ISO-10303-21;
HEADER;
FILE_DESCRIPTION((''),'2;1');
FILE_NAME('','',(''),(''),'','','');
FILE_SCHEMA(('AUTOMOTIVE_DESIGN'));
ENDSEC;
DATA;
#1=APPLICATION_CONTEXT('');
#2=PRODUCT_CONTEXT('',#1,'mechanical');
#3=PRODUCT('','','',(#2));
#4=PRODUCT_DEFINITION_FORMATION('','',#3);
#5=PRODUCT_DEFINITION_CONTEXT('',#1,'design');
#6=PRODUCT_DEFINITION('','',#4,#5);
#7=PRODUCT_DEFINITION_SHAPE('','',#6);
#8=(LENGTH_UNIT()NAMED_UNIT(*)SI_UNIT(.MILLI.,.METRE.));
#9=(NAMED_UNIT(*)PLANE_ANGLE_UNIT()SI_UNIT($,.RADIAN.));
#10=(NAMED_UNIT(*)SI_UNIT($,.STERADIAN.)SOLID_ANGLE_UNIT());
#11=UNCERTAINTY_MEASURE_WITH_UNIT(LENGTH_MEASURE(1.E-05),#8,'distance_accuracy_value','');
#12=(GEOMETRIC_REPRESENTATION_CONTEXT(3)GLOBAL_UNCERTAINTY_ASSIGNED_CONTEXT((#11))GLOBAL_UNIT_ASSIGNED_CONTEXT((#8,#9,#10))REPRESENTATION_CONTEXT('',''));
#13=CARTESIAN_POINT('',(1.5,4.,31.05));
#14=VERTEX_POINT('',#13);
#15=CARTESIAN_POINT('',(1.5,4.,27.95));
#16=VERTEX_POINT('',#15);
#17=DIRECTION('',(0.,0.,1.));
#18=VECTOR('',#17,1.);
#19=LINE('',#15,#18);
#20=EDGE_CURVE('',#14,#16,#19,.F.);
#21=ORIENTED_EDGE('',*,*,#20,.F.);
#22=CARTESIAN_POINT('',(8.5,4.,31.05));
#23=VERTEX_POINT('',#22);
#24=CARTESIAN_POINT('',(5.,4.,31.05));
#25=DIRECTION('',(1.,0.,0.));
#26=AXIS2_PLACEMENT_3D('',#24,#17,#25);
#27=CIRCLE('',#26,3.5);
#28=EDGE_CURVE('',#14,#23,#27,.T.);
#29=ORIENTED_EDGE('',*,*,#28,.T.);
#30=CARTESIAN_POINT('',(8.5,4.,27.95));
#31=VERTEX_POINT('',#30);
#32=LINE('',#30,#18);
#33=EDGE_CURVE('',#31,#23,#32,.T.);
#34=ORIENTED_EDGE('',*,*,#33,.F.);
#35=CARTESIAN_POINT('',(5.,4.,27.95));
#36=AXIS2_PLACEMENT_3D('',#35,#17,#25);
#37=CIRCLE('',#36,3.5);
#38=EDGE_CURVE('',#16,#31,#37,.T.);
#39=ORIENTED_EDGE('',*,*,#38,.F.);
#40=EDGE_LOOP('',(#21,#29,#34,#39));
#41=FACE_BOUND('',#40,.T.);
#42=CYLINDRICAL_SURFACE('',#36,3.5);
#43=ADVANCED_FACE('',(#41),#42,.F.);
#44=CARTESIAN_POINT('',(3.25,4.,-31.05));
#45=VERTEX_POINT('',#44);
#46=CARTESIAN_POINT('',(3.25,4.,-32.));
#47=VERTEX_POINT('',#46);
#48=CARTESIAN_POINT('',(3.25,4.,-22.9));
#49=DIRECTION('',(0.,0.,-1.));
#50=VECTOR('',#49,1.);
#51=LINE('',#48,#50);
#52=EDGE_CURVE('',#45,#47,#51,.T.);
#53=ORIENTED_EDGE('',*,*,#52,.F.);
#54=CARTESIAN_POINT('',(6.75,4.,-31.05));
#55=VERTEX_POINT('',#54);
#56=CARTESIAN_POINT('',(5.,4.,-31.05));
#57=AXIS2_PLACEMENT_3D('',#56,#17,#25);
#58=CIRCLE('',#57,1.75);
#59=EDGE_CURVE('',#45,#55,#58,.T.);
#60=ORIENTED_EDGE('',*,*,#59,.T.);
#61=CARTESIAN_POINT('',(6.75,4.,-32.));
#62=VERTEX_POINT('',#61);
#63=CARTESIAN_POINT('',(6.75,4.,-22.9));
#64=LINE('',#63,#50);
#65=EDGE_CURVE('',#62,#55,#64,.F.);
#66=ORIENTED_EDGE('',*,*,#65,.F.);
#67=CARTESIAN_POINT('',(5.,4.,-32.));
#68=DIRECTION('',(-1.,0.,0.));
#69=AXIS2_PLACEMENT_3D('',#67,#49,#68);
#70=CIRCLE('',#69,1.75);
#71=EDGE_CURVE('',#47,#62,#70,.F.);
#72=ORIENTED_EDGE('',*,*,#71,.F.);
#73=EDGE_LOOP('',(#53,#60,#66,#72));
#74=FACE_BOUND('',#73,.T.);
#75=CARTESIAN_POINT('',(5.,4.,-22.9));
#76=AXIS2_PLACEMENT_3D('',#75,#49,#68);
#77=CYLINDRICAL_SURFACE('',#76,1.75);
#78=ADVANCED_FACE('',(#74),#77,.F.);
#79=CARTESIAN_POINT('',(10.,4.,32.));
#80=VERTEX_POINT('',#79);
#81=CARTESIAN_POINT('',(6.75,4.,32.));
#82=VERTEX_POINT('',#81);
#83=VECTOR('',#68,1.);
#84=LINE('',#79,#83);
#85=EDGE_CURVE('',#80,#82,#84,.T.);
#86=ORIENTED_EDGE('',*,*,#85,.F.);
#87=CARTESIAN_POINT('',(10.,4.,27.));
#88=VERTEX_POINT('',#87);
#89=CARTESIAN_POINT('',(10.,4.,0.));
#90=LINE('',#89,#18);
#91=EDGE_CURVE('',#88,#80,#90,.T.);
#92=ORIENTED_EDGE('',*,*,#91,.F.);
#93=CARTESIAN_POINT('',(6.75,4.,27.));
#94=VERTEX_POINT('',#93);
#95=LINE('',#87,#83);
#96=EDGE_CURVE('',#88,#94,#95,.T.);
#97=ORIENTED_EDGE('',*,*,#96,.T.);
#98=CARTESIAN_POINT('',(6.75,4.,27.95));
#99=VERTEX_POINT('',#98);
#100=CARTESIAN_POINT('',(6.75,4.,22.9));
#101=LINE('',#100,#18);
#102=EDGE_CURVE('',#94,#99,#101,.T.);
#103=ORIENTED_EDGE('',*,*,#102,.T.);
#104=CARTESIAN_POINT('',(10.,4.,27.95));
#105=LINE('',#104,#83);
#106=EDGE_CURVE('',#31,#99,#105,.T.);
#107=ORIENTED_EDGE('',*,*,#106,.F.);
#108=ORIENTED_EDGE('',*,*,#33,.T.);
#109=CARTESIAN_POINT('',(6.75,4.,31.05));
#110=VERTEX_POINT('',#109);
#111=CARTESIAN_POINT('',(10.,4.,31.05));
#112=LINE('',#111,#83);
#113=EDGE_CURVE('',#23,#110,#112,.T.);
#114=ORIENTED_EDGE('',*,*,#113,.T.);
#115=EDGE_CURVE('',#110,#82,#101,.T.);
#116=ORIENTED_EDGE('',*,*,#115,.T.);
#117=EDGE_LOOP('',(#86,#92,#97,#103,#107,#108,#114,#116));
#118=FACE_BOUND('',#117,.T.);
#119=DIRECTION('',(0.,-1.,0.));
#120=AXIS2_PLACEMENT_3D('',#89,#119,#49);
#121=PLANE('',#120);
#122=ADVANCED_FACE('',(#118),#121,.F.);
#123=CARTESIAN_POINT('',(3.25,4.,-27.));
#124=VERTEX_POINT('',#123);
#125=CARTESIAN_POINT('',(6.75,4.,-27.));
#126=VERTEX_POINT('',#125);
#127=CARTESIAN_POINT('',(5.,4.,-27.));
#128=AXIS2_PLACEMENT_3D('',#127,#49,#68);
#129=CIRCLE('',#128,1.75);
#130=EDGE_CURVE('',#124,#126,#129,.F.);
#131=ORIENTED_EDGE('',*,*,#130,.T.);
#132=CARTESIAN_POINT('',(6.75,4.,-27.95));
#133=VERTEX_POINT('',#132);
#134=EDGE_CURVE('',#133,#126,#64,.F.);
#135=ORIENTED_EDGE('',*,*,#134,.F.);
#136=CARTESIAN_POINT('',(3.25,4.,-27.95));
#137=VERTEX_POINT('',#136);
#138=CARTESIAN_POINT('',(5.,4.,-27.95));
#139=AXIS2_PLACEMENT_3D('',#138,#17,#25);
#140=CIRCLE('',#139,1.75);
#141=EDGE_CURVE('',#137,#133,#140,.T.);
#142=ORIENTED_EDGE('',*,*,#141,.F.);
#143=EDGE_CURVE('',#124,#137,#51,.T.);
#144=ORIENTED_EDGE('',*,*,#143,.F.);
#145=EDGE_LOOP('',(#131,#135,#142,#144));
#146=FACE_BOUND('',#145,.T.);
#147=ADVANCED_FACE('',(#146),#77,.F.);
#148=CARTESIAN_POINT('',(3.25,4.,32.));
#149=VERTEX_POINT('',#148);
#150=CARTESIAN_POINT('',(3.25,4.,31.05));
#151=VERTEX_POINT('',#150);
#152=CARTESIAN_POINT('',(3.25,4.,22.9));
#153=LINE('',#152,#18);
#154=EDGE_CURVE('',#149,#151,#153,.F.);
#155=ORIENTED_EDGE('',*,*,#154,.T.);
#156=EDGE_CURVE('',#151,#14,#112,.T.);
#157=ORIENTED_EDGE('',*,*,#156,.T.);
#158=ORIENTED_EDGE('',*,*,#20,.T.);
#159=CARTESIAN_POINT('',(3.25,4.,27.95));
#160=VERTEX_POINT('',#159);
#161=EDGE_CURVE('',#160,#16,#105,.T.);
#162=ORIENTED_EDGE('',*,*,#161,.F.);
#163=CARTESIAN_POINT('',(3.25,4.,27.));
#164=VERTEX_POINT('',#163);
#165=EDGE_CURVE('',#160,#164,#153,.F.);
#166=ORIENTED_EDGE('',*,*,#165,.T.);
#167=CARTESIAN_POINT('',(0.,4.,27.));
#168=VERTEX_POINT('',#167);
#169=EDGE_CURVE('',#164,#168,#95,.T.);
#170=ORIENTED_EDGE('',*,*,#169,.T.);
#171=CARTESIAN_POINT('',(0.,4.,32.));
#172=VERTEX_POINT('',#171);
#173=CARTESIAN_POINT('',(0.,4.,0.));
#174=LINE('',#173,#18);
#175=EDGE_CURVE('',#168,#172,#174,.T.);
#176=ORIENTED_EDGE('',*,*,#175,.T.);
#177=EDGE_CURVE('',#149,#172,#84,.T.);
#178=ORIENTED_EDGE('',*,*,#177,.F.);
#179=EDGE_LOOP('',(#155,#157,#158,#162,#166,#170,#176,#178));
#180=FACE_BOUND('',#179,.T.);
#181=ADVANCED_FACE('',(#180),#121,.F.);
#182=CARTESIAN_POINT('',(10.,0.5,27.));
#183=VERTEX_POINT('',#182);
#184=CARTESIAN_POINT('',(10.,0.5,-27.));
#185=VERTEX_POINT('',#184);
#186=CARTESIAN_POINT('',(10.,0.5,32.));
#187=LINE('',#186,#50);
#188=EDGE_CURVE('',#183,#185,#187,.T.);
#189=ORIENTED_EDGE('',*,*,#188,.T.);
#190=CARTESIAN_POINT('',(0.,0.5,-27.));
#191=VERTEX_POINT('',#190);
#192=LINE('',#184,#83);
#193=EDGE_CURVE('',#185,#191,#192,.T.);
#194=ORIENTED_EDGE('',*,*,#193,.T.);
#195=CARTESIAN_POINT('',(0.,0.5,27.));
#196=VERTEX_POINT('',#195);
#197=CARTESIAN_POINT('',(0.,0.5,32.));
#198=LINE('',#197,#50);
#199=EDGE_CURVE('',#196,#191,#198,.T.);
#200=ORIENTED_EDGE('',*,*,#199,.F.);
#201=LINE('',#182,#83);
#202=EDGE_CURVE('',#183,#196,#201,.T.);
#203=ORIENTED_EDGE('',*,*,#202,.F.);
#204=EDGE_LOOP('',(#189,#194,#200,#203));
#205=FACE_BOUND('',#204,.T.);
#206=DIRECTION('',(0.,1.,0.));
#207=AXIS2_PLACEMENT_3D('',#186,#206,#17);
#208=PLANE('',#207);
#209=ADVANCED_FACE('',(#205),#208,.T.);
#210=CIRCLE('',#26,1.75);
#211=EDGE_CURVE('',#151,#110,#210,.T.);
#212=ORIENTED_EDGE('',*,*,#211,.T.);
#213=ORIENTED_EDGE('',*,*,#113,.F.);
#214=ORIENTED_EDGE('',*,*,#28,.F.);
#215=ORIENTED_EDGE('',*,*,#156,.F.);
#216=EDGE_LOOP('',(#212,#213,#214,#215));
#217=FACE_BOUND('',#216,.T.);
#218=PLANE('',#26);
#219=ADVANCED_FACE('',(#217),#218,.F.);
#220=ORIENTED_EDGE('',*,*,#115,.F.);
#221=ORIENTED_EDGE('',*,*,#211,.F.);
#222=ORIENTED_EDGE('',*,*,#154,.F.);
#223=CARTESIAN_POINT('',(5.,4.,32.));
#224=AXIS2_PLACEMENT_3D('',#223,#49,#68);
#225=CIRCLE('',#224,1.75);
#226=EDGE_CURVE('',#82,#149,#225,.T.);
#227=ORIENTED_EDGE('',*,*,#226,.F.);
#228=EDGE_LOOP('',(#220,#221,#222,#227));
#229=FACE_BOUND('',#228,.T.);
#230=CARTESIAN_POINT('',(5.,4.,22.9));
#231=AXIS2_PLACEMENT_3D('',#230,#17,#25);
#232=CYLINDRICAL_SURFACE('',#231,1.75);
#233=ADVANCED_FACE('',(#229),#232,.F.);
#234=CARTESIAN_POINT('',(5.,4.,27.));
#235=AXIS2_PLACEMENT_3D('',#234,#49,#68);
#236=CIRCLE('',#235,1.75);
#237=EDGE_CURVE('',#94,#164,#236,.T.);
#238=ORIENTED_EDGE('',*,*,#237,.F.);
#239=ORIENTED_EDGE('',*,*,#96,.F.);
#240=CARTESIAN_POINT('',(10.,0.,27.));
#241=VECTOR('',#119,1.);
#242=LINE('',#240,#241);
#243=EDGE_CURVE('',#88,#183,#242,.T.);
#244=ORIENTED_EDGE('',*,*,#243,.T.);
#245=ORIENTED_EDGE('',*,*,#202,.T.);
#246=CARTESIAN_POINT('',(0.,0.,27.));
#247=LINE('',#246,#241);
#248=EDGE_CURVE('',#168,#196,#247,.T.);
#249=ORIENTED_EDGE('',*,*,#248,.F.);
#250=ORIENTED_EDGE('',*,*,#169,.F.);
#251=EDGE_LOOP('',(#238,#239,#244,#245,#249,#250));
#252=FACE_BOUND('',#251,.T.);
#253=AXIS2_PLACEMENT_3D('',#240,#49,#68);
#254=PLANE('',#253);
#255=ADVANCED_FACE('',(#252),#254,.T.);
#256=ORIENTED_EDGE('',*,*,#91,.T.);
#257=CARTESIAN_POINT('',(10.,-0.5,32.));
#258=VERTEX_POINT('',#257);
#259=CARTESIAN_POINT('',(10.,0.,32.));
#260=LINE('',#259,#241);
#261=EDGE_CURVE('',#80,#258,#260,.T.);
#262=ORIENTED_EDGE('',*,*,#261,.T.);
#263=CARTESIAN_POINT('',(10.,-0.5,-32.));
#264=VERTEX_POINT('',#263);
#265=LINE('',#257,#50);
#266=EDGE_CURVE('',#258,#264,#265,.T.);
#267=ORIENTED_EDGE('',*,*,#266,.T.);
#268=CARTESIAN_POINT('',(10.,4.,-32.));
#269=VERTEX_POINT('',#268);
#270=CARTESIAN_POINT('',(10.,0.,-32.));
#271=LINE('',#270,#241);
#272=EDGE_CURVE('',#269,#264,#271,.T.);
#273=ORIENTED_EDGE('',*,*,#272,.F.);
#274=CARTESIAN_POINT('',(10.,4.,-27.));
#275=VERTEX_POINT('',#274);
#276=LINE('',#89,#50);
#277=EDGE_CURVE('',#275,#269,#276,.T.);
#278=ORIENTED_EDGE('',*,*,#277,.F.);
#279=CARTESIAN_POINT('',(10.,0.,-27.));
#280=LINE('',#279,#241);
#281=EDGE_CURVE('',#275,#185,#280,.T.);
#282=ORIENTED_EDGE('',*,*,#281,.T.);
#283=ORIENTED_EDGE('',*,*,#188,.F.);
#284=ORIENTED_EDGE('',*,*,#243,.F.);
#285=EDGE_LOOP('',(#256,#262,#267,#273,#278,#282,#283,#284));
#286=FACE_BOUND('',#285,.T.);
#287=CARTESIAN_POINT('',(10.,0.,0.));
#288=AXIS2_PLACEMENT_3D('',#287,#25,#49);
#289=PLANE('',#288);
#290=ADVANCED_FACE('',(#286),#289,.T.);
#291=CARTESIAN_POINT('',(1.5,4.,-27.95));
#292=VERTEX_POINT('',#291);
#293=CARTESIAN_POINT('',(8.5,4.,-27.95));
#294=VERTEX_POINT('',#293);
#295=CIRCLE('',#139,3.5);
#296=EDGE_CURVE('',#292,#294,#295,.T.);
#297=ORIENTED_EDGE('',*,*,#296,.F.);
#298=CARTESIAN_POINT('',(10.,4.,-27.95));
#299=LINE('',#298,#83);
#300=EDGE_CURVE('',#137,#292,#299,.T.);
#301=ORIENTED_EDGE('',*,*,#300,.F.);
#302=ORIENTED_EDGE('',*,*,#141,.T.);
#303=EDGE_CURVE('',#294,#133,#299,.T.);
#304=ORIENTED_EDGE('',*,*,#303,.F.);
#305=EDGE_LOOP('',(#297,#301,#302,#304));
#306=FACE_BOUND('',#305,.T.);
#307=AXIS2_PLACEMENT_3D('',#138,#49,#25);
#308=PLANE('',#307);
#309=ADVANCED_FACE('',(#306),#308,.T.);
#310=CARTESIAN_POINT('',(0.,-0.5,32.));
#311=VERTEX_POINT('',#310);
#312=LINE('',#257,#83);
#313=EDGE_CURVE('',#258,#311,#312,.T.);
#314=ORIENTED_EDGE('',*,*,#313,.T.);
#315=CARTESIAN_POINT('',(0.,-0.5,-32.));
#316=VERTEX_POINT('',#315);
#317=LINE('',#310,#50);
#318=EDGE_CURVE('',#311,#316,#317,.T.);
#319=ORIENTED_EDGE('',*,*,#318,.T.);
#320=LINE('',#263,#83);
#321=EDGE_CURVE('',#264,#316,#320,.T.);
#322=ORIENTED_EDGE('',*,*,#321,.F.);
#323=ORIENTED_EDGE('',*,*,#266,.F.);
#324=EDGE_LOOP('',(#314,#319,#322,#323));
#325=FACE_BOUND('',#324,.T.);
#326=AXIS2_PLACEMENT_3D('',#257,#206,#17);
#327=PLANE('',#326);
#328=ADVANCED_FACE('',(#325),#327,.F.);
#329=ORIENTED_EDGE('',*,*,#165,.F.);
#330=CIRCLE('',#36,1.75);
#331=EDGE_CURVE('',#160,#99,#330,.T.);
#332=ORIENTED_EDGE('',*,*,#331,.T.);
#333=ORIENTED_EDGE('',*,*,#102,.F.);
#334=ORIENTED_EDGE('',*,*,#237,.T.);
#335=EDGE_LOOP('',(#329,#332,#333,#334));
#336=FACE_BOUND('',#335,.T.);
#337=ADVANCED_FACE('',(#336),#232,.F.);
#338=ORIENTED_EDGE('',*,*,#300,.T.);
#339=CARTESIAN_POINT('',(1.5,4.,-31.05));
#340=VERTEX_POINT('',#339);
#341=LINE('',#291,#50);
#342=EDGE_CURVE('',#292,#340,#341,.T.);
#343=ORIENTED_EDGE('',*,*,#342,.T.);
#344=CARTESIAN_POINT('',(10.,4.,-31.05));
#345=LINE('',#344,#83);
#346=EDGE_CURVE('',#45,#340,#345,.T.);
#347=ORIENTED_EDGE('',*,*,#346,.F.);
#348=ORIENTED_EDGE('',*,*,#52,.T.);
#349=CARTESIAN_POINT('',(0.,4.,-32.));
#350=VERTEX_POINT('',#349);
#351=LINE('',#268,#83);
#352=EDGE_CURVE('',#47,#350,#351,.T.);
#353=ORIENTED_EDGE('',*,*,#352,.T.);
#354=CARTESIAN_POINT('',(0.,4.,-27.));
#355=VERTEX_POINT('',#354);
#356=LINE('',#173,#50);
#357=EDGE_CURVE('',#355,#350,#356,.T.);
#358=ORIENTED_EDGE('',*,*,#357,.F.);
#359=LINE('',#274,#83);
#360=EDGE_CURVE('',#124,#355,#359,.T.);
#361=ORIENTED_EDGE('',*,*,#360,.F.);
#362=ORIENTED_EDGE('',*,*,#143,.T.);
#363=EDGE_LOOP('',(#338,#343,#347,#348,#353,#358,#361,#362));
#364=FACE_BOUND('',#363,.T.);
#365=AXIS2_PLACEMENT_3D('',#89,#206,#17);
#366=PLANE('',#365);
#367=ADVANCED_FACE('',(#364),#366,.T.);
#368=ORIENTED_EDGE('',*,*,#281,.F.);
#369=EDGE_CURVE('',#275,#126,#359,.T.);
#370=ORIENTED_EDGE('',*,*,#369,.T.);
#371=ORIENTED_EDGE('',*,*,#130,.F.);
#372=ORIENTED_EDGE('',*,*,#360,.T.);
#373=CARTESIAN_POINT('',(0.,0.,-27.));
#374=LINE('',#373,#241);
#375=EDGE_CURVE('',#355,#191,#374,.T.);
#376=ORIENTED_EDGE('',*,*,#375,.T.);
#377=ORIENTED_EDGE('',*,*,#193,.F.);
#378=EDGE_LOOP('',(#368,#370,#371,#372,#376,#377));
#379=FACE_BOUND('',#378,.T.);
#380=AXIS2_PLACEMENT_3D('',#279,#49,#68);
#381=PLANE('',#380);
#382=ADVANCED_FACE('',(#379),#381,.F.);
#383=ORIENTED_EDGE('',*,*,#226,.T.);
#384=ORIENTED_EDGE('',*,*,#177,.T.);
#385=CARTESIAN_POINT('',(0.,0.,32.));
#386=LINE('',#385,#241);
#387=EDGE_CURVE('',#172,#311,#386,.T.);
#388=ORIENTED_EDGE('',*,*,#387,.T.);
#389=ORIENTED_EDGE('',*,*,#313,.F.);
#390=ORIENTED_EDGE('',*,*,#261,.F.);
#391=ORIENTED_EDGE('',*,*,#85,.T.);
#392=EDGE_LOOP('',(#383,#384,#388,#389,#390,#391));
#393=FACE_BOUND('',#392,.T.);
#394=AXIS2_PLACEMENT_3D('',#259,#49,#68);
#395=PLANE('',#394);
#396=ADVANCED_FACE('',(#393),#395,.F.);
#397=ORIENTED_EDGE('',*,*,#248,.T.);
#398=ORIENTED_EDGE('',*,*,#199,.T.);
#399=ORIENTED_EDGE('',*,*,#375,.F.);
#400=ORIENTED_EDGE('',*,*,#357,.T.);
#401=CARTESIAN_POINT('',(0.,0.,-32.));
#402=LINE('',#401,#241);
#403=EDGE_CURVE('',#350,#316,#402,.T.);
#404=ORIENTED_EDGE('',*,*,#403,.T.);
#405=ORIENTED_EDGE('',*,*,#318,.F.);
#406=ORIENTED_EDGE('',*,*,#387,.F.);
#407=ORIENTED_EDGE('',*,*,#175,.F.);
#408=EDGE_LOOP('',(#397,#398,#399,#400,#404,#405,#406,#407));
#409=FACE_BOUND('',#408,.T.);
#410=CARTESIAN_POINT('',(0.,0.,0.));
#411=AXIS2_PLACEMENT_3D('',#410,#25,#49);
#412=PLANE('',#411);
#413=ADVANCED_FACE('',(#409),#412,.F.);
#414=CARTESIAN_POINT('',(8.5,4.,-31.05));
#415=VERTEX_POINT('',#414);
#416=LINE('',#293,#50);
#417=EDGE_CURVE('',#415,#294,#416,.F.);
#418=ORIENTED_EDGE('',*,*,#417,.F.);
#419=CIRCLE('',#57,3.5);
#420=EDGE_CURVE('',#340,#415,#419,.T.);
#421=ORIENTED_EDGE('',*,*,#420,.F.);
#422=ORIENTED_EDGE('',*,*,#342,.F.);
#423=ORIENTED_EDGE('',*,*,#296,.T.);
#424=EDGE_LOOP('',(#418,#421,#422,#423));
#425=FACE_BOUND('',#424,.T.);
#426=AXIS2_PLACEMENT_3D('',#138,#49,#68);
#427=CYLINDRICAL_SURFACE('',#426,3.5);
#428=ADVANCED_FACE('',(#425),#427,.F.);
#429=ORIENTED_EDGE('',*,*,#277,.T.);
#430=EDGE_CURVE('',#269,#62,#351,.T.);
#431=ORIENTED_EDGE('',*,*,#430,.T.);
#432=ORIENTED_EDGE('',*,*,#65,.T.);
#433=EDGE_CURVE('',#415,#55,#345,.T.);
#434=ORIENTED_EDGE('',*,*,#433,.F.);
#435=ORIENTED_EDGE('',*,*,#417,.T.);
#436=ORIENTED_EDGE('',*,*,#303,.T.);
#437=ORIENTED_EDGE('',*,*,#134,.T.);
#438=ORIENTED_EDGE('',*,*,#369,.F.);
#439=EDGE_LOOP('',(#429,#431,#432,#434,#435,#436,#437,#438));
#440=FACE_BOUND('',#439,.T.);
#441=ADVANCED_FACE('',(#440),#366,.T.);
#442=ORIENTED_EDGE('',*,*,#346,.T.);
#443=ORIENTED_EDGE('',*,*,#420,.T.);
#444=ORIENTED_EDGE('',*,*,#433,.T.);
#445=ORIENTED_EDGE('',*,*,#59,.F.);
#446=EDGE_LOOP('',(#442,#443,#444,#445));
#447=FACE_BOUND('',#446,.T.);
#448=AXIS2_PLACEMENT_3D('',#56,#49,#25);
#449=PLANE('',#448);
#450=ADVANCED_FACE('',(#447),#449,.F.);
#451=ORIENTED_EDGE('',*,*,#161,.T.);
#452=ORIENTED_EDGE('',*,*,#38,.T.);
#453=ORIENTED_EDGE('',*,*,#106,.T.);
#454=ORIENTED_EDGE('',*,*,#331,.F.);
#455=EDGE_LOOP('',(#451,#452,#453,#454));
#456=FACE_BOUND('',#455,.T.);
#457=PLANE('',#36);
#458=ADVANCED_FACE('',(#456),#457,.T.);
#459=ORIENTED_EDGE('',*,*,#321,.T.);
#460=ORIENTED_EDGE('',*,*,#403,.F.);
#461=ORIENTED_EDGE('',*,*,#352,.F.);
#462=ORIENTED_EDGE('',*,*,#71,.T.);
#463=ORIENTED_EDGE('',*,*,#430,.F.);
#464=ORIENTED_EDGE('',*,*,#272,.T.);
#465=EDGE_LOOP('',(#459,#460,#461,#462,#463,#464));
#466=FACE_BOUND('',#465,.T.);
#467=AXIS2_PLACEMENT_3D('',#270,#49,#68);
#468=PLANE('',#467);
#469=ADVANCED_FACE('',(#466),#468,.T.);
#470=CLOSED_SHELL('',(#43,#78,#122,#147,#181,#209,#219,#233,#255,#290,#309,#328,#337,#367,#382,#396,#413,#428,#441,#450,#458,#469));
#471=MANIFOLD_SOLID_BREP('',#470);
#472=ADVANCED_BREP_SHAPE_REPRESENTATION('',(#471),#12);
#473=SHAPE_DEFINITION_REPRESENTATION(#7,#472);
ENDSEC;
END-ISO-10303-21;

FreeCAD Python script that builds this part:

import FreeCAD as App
import Part
import Sketcher
from FreeCAD import Vector

doc = App.newDocument("Part")
body = doc.addObject("PartDesign::Body", "Body")

# Sketch on YZ plane
sketch1 = body.newObject("Sketcher::SketchObject", "Sketch")
sketch1.AttachmentSupport = (doc.getObject("YZ_Plane"), [""])
sketch1.MapMode = "FlatFace"
sketch1.addGeometry(Part.LineSegment(Vector(4, 32, 0), Vector(-0.5, 32, 0)), False)
sketch1.addGeometry(Part.LineSegment(Vector(-0.5, 32, 0), Vector(-0.5, -32, 0)), False)
sketch1.addGeometry(Part.LineSegment(Vector(-0.5, -32, 0), Vector(4, -32, 0)), False)
sketch1.addGeometry(Part.LineSegment(Vector(4, -32, 0), Vector(4, -27, 0)), False)
sketch1.addGeometry(Part.LineSegment(Vector(4, -27, 0), Vector(0.5, -27, 0)), False)
sketch1.addGeometry(Part.LineSegment(Vector(0.5, -27, 0), Vector(0.5, 27, 0)), False)
sketch1.addGeometry(Part.LineSegment(Vector(0.5, 27, 0), Vector(4, 27, 0)), False)
sketch1.addGeometry(Part.LineSegment(Vector(4, 27, 0), Vector(4, 32, 0)), False)
sketch1.addConstraint(Sketcher.Constraint("Coincident", 0, 2, 1, 1))
sketch1.addConstraint(Sketcher.Constraint("Coincident", 1, 2, 2, 1))
sketch1.addConstraint(Sketcher.Constraint("Coincident", 2, 2, 3, 1))
sketch1.addConstraint(Sketcher.Constraint("Coincident", 3, 2, 4, 1))
sketch1.addConstraint(Sketcher.Constraint("Coincident", 4, 2, 5, 1))
sketch1.addConstraint(Sketcher.Constraint("Coincident", 5, 2, 6, 1))
sketch1.addConstraint(Sketcher.Constraint("Coincident", 6, 2, 7, 1))
sketch1.addConstraint(Sketcher.Constraint("Coincident", 7, 2, 0, 1))
sketch1.addConstraint(Sketcher.Constraint("Horizontal", 0))
sketch1.addConstraint(Sketcher.Constraint("Vertical", 1))
sketch1.addConstraint(Sketcher.Constraint("Horizontal", 2))
sketch1.addConstraint(Sketcher.Constraint("Vertical", 3))
sketch1.addConstraint(Sketcher.Constraint("Horizontal", 4))
sketch1.addConstraint(Sketcher.Constraint("Vertical", 5))
sketch1.addConstraint(Sketcher.Constraint("Horizontal", 6))
sketch1.addConstraint(Sketcher.Constraint("Vertical", 7))
sketch1.addConstraint(Sketcher.Constraint("Symmetric", 3, 2, 6, 2, -1))
sketch1.addConstraint(Sketcher.Constraint("Equal", 3, 7))
sketch1.addConstraint(Sketcher.Constraint("DistanceY", 1, 2, 1, 1, 64.0))
sketch1.addConstraint(Sketcher.Constraint("DistanceY", 3, 1, 3, 2, 5.0))
sketch1.addConstraint(Sketcher.Constraint("DistanceX", 0, 2, 0, 1, 4.5))
sketch1.addConstraint(Sketcher.Constraint("DistanceX", 4, 2, 4, 1, 3.5))
sketch1.addConstraint(Sketcher.Constraint("DistanceX", -1, 1, 2, 2, 4.0))
pad1 = body.newObject("PartDesign::Pad", "Pad")
pad1.Profile = sketch1
pad1.Length = 10

# Sketch on XY plane
sketch2 = body.newObject("Sketcher::SketchObject", "Sketch001")
sketch2.AttachmentSupport = (doc.getObject("XY_Plane"), [""])
sketch2.MapMode = "FlatFace"
sketch2.AttachmentOffset = App.Placement(Vector(0, 0, 29.5), App.Rotation())
sketch2.addGeometry(Part.Circle(Vector(5, 4, 0), Vector(0, 0, 1), 3.5), False)
sketch2.addGeometry(Part.Circle(Vector(5, 4, 0), Vector(0, 0, 1), 1.75), False)
sketch2.addConstraint(Sketcher.Constraint("Coincident", 1, 3, 0, 3))
sketch2.addConstraint(Sketcher.Constraint("Diameter", 0, 7.0))
sketch2.addConstraint(Sketcher.Constraint("Diameter", 1, 3.5))
sketch2.addConstraint(Sketcher.Constraint("DistanceX", -1, 1, 0, 3, 5.0))
sketch2.addConstraint(Sketcher.Constraint("DistanceY", -1, 1, 0, 3, 4.0))
pocket1 = body.newObject("PartDesign::Pocket", "Pocket")
pocket1.Profile = sketch2
pocket1.Length = 3.1
pocket1.Midplane = True

# Sketch on XY plane
sketch3 = body.newObject("Sketcher::SketchObject", "Sketch002")
sketch3.AttachmentSupport = (doc.getObject("XY_Plane"), [""])
sketch3.MapMode = "FlatFace"
sketch3.AttachmentOffset = App.Placement(Vector(0, 0, 29.5), App.Rotation())
sketch3.addGeometry(Part.Circle(Vector(5, 4, 0), Vector(0, 0, 1), 1.75), False)
sketch3.addConstraint(Sketcher.Constraint("Diameter", 0, 3.5))
sketch3.addConstraint(Sketcher.Constraint("DistanceX", -1, 1, 0, 3, 5.0))
sketch3.addConstraint(Sketcher.Constraint("DistanceY", -1, 1, 0, 3, 4.0))
pocket2 = body.newObject("PartDesign::Pocket", "Pocket001")
pocket2.Profile = sketch3
pocket2.Length = 13.2
pocket2.Midplane = True
doc.recompute()

mirrored = body.newObject("PartDesign::Mirrored", "Mirrored")
mirrored.Originals = [pocket1]
mirrored.MirrorPlane = (doc.getObject("XY_Plane"), [""])
body.Tip = mirrored
doc.recompute()

mirrored2 = body.newObject("PartDesign::Mirrored", "Mirrored001")
mirrored2.Originals = [pocket2]
mirrored2.MirrorPlane = (doc.getObject("XY_Plane"), [""])
body.Tip = mirrored2

doc.recompute()
